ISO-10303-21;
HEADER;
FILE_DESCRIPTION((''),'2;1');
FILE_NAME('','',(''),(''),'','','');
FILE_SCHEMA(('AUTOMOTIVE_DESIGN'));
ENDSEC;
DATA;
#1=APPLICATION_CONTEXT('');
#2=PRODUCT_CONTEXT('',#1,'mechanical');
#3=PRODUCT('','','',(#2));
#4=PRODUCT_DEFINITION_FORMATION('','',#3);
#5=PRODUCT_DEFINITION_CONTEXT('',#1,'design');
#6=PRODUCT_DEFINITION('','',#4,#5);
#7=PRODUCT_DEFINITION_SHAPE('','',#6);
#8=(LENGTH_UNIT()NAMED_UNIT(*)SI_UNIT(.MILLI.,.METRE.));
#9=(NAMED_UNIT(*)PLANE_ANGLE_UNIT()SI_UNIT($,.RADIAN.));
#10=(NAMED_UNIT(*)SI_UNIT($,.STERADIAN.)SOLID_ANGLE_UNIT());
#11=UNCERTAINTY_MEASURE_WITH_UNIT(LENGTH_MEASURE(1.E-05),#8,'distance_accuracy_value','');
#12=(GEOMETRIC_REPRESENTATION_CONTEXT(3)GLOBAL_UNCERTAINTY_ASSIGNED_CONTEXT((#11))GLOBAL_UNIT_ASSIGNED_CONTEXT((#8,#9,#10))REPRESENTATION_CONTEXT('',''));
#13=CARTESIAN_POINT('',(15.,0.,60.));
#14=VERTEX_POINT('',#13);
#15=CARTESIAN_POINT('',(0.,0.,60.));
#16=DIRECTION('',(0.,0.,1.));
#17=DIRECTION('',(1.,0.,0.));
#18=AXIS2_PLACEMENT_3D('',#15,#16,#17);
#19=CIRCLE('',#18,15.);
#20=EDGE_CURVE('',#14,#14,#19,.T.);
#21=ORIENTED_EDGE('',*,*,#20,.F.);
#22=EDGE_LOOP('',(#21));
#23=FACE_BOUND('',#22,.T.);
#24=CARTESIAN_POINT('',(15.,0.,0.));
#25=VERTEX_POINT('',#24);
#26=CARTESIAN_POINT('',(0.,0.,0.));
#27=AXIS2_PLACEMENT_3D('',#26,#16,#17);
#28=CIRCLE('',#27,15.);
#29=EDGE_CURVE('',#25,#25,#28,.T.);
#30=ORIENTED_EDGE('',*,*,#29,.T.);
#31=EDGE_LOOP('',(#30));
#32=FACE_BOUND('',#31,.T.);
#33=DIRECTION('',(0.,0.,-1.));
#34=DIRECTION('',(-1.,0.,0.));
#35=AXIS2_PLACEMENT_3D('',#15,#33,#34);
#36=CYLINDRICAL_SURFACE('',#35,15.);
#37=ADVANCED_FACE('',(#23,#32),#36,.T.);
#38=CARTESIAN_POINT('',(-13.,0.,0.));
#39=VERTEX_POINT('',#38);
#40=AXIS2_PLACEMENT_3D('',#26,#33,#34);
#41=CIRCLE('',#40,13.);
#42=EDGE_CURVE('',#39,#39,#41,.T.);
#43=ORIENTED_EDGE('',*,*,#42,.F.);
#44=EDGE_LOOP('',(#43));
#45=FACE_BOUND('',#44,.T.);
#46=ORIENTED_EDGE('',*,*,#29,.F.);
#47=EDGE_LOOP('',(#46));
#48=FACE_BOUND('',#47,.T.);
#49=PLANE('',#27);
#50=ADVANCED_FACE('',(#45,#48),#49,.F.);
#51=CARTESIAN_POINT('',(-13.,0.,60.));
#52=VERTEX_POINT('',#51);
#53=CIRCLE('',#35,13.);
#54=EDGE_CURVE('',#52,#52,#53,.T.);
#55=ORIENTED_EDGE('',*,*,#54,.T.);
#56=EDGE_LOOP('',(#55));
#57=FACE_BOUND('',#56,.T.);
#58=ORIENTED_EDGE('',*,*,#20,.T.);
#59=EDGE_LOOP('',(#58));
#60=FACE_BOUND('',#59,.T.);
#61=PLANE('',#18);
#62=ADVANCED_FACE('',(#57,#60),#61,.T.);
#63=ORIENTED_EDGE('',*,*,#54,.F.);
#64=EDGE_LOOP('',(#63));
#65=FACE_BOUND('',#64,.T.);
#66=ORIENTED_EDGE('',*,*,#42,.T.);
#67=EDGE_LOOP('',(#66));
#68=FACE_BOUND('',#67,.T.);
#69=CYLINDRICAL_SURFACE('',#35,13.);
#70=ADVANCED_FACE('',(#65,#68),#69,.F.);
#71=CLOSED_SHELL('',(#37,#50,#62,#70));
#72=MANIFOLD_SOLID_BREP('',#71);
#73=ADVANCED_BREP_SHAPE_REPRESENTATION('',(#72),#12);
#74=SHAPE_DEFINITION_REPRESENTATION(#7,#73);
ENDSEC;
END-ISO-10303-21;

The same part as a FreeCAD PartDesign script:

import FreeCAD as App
import Part
import Sketcher

V = App.Vector
Q = App.Units.Quantity

doc = App.newDocument("Part")
params = doc.addObject("Spreadsheet::Sheet", "Params")
for row, (alias, value) in enumerate([
    ("sketch1_diameter", "30 mm"),
    ("pad1_length", "60 mm"),
    ("sketch2_diameter", "26 mm"),
], start=1):
    params.set(f"A{row}", alias)
    params.set(f"B{row}", "=" + value)
    params.setAlias(f"B{row}", alias)

body = doc.addObject("PartDesign::Body", "Body")

# Sketch on XY plane
sketch1 = body.newObject("Sketcher::SketchObject", "Sketch")
sketch1.AttachmentSupport = (doc.getObject("XY_Plane"), [""])
sketch1.MapMode = "FlatFace"
sketch1.addGeometry(Part.Circle(V(0, 0, 0), V(0, 0, 1), 15), False)
sketch1.addConstraint(Sketcher.Constraint("Coincident", 0, 3, -1, 1))
sketch1.addConstraint(Sketcher.Constraint("Diameter", 0, Q("30 mm")))
sketch1.setExpression("Constraints[1]", "Params.sketch1_diameter")
pad1 = body.newObject("PartDesign::Pad", "Pad")
pad1.Profile = sketch1
pad1.setExpression("Length", "Params.pad1_length")

# Sketch on XY plane
sketch2 = body.newObject("Sketcher::SketchObject", "Sketch001")
sketch2.AttachmentSupport = (doc.getObject("XY_Plane"), [""])
sketch2.MapMode = "FlatFace"
sketch2.addGeometry(Part.Circle(V(0, 0, 0), V(0, 0, 1), 13), False)
sketch2.addConstraint(Sketcher.Constraint("Coincident", 0, 3, -1, 1))
sketch2.addConstraint(Sketcher.Constraint("Diameter", 0, Q("26 mm")))
sketch2.setExpression("Constraints[1]", "Params.sketch2_diameter")
pocket1 = body.newObject("PartDesign::Pocket", "Pocket")
pocket1.Profile = sketch2
pocket1.Type = "ThroughAll"
pocket1.Reversed = True

doc.recompute()
